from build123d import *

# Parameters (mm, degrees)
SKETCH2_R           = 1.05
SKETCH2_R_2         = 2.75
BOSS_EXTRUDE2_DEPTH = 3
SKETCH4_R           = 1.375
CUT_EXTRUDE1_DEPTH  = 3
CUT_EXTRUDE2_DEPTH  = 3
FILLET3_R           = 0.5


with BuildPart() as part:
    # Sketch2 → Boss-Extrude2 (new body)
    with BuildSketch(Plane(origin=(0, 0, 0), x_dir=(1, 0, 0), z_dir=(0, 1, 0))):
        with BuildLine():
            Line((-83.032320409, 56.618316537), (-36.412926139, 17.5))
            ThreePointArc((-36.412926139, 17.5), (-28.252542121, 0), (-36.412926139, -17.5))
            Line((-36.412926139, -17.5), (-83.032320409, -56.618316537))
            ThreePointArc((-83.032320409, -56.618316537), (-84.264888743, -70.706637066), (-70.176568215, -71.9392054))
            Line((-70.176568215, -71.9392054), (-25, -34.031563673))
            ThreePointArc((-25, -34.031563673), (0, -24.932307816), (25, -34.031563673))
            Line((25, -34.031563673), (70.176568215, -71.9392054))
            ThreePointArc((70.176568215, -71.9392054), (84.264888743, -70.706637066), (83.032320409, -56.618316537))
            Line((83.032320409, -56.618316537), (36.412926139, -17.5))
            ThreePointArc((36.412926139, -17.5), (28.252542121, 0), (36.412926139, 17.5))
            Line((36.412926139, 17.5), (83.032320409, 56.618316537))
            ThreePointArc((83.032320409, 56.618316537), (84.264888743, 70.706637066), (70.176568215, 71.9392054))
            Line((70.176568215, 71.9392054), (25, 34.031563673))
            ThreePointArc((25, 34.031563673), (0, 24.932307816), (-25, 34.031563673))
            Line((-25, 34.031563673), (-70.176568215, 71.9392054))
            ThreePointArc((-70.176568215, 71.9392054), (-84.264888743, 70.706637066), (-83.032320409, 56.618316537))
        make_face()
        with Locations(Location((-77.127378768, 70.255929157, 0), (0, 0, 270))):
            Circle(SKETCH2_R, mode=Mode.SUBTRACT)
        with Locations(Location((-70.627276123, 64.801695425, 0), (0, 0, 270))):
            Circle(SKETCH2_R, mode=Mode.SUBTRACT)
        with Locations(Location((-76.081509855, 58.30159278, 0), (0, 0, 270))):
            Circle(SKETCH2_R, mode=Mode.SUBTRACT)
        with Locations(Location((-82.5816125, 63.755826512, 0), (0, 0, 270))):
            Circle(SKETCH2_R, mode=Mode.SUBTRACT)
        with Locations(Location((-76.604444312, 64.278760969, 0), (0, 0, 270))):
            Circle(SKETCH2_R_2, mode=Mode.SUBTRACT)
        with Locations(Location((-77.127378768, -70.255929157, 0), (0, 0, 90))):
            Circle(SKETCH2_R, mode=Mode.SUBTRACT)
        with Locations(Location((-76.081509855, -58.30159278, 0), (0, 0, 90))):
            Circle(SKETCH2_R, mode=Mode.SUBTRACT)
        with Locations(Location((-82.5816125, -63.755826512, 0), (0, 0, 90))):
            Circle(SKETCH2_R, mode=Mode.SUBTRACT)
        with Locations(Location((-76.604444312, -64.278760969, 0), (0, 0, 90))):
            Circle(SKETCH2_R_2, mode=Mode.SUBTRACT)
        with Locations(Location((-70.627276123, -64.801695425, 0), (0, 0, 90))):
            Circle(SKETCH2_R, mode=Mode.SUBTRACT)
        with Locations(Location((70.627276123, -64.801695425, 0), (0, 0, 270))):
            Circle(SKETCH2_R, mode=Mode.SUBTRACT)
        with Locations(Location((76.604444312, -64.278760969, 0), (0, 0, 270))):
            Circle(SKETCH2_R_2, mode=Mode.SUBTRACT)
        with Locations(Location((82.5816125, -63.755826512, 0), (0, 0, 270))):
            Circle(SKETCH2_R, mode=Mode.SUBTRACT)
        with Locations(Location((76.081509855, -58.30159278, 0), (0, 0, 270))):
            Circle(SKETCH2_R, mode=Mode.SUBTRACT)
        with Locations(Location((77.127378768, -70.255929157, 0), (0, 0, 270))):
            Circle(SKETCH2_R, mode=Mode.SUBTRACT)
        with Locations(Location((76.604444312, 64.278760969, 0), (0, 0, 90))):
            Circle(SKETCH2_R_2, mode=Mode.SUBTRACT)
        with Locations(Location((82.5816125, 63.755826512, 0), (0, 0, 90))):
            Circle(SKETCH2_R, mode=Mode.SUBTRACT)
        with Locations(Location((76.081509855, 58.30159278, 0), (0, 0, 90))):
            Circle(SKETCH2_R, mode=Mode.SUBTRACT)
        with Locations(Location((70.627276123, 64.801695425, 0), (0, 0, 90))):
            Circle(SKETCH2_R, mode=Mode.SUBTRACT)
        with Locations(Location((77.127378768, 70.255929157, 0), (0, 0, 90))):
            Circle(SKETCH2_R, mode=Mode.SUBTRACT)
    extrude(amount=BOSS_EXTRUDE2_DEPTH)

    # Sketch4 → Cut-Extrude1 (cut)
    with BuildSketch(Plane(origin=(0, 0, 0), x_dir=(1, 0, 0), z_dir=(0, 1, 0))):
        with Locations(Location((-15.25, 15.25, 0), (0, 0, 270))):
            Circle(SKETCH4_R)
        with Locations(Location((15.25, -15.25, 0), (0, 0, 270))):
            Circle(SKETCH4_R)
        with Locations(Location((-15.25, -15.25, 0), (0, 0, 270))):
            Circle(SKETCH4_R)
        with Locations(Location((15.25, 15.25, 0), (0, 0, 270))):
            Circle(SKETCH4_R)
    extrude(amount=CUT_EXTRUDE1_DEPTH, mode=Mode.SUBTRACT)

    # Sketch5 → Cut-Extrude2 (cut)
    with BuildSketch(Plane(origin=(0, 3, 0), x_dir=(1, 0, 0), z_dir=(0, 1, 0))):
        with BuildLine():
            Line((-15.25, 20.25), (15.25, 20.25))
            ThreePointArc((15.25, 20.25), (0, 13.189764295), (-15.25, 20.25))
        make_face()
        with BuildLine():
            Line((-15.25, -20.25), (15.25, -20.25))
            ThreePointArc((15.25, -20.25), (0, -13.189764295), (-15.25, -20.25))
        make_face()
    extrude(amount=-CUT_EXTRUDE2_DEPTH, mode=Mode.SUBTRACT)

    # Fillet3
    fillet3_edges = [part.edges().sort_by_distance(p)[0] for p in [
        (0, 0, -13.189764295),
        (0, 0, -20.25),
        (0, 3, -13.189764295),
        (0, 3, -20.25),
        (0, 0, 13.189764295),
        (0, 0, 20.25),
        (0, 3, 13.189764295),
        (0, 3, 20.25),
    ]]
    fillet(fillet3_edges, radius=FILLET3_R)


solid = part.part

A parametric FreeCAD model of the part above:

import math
import FreeCAD as App
import Part
import Sketcher
Q = App.Units.Quantity


def edges_at(feature, points):
    """Names of the edges that pass closest to the given points."""
    edges = feature.Shape.Edges
    near = lambda p: min(range(len(edges)), key=lambda i: edges[i].distToShape(Part.Vertex(*p))[0])
    return sorted({f"Edge{near(p) + 1}" for p in points})

doc = App.newDocument("Part")
body = doc.addObject("PartDesign::Body", "Body")

# Sketch on XZ plane
sketch1 = body.newObject("Sketcher::SketchObject", "Sketch")
sketch1.AttachmentSupport = (doc.getObject("XZ_Plane"), [""])
sketch1.MapMode = "FlatFace"
sketch1.addGeometry(Part.LineSegment(App.Vector(-83.03232, -56.618317, 0), App.Vector(-36.412926, -17.5, 0)), False)
sketch1.addGeometry(Part.ArcOfCircle(Part.Circle(App.Vector(-51.09717, 0, 0), App.Vector(0, 0, 1), 22.844628), math.radians(-50), math.radians(50)), False)
sketch1.addGeometry(Part.LineSegment(App.Vector(-36.412926, 17.5, 0), App.Vector(-83.03232, 56.618317, 0)), False)
sketch1.addGeometry(Part.ArcOfCircle(Part.Circle(App.Vector(-76.604444, 64.278761, 0), App.Vector(0, 0, 1), 10), math.radians(50), math.radians(230)), False)
sketch1.addGeometry(Part.LineSegment(App.Vector(-70.176568, 71.939205, 0), App.Vector(-25, 34.031564, 0)), False)
sketch1.addGeometry(Part.ArcOfCircle(Part.Circle(App.Vector(0, 63.825403, 0), App.Vector(0, 0, 1), 38.893096), math.radians(-130), math.radians(-50)), False)
sketch1.addGeometry(Part.LineSegment(App.Vector(25, 34.031564, 0), App.Vector(70.176568, 71.939205, 0)), False)
sketch1.addGeometry(Part.ArcOfCircle(Part.Circle(App.Vector(76.604444, 64.278761, 0), App.Vector(0, 0, 1), 10), math.radians(-50), math.radians(130)), False)
sketch1.addGeometry(Part.LineSegment(App.Vector(83.03232, 56.618317, 0), App.Vector(36.412926, 17.5, 0)), False)
sketch1.addGeometry(Part.ArcOfCircle(Part.Circle(App.Vector(51.09717, 0, 0), App.Vector(0, 0, 1), 22.844628), math.radians(130), math.radians(230)), False)
sketch1.addGeometry(Part.LineSegment(App.Vector(36.412926, -17.5, 0), App.Vector(83.03232, -56.618317, 0)), False)
sketch1.addGeometry(Part.ArcOfCircle(Part.Circle(App.Vector(76.604444, -64.278761, 0), App.Vector(0, 0, 1), 10), math.radians(-130), math.radians(50)), False)
sketch1.addGeometry(Part.LineSegment(App.Vector(70.176568, -71.939205, 0), App.Vector(25, -34.031564, 0)), False)
sketch1.addGeometry(Part.ArcOfCircle(Part.Circle(App.Vector(0, -63.825403, 0), App.Vector(0, 0, 1), 38.893096), math.radians(50), math.radians(130)), False)
sketch1.addGeometry(Part.LineSegment(App.Vector(-25, -34.031564, 0), App.Vector(-70.176568, -71.939205, 0)), False)
sketch1.addGeometry(Part.ArcOfCircle(Part.Circle(App.Vector(-76.604444, -64.278761, 0), App.Vector(0, 0, 1), 10), math.radians(130), math.radians(310)), False)
sketch1.addGeometry(Part.Circle(App.Vector(-77.127379, 70.255929, 0), App.Vector(0, 0, 1), 1.05), False)
sketch1.addGeometry(Part.Circle(App.Vector(-82.581613, 63.755827, 0), App.Vector(0, 0, 1), 1.05), False)
sketch1.addGeometry(Part.Circle(App.Vector(-76.604444, 64.278761, 0), App.Vector(0, 0, 1), 2.75), False)
sketch1.addGeometry(Part.Circle(App.Vector(-70.627276, 64.801695, 0), App.Vector(0, 0, 1), 1.05), False)
sketch1.addGeometry(Part.Circle(App.Vector(-76.08151, 58.301593, 0), App.Vector(0, 0, 1), 1.05), False)
sketch1.addGeometry(Part.Circle(App.Vector(70.627276, 64.801695, 0), App.Vector(0, 0, 1), 1.05), False)
sketch1.addGeometry(Part.Circle(App.Vector(77.127379, 70.255929, 0), App.Vector(0, 0, 1), 1.05), False)
sketch1.addGeometry(Part.Circle(App.Vector(76.604444, 64.278761, 0), App.Vector(0, 0, 1), 2.75), False)
sketch1.addGeometry(Part.Circle(App.Vector(82.581613, 63.755827, 0), App.Vector(0, 0, 1), 1.05), False)
sketch1.addGeometry(Part.Circle(App.Vector(76.08151, 58.301593, 0), App.Vector(0, 0, 1), 1.05), False)
sketch1.addGeometry(Part.Circle(App.Vector(-76.08151, -58.301593, 0), App.Vector(0, 0, 1), 1.05), False)
sketch1.addGeometry(Part.Circle(App.Vector(-82.581613, -63.755827, 0), App.Vector(0, 0, 1), 1.05), False)
sketch1.addGeometry(Part.Circle(App.Vector(-76.604444, -64.278761, 0), App.Vector(0, 0, 1), 2.75), False)
sketch1.addGeometry(Part.Circle(App.Vector(-77.127379, -70.255929, 0), App.Vector(0, 0, 1), 1.05), False)
sketch1.addGeometry(Part.Circle(App.Vector(-70.627276, -64.801695, 0), App.Vector(0, 0, 1), 1.05), False)
sketch1.addGeometry(Part.Circle(App.Vector(76.08151, -58.301593, 0), App.Vector(0, 0, 1), 1.05), False)
sketch1.addGeometry(Part.Circle(App.Vector(70.627276, -64.801695, 0), App.Vector(0, 0, 1), 1.05), False)
sketch1.addGeometry(Part.Circle(App.Vector(76.604444, -64.278761, 0), App.Vector(0, 0, 1), 2.75), False)
sketch1.addGeometry(Part.Circle(App.Vector(82.581613, -63.755827, 0), App.Vector(0, 0, 1), 1.05), False)
sketch1.addGeometry(Part.Circle(App.Vector(77.127379, -70.255929, 0), App.Vector(0, 0, 1), 1.05), False)
sketch1.addConstraint(Sketcher.Constraint("Tangent", 0, 2, 1, 1))
sketch1.addConstraint(Sketcher.Constraint("Tangent", 1, 2, 2, 1))
sketch1.addConstraint(Sketcher.Constraint("Tangent", 2, 2, 3, 2))
sketch1.addConstraint(Sketcher.Constraint("Tangent", 3, 1, 4, 1))
sketch1.addConstraint(Sketcher.Constraint("Tangent", 4, 2, 5, 1))
sketch1.addConstraint(Sketcher.Constraint("Tangent", 5, 2, 6, 1))
sketch1.addConstraint(Sketcher.Constraint("Tangent", 6, 2, 7, 2))
sketch1.addConstraint(Sketcher.Constraint("Tangent", 7, 1, 8, 1))
sketch1.addConstraint(Sketcher.Constraint("Tangent", 8, 2, 9, 1))
sketch1.addConstraint(Sketcher.Constraint("Tangent", 9, 2, 10, 1))
sketch1.addConstraint(Sketcher.Constraint("Tangent", 10, 2, 11, 2))
sketch1.addConstraint(Sketcher.Constraint("Tangent", 11, 1, 12, 1))
sketch1.addConstraint(Sketcher.Constraint("Tangent", 12, 2, 13, 1))
sketch1.addConstraint(Sketcher.Constraint("Tangent", 13, 2, 14, 1))
sketch1.addConstraint(Sketcher.Constraint("Tangent", 14, 2, 15, 2))
sketch1.addConstraint(Sketcher.Constraint("Tangent", 15, 1, 0, 1))
sketch1.addConstraint(Sketcher.Constraint("Coincident", 18, 3, 3, 3))
sketch1.addConstraint(Sketcher.Constraint("Coincident", 23, 3, 7, 3))
sketch1.addConstraint(Sketcher.Constraint("Coincident", 28, 3, 15, 3))
sketch1.addConstraint(Sketcher.Constraint("Coincident", 33, 3, 11, 3))
sketch1.addConstraint(Sketcher.Constraint("Equal", 3, 7))
sketch1.addConstraint(Sketcher.Constraint("Equal", 1, 9))
sketch1.addConstraint(Sketcher.Constraint("Equal", 7, 11))
sketch1.addConstraint(Sketcher.Constraint("Equal", 5, 13))
sketch1.addConstraint(Sketcher.Constraint("Equal", 11, 15))
sketch1.addConstraint(Sketcher.Constraint("Equal", 16, 17))
sketch1.addConstraint(Sketcher.Constraint("Equal", 17, 19))
sketch1.addConstraint(Sketcher.Constraint("Equal", 19, 20))
sketch1.addConstraint(Sketcher.Constraint("Equal", 20, 21))
sketch1.addConstraint(Sketcher.Constraint("Equal", 21, 22))
sketch1.addConstraint(Sketcher.Constraint("Equal", 18, 23))
sketch1.addConstraint(Sketcher.Constraint("Equal", 22, 24))
sketch1.addConstraint(Sketcher.Constraint("Equal", 24, 25))
sketch1.addConstraint(Sketcher.Constraint("Equal", 25, 26))
sketch1.addConstraint(Sketcher.Constraint("Equal", 26, 27))
sketch1.addConstraint(Sketcher.Constraint("Equal", 23, 28))
sketch1.addConstraint(Sketcher.Constraint("Equal", 27, 29))
sketch1.addConstraint(Sketcher.Constraint("Equal", 29, 30))
sketch1.addConstraint(Sketcher.Constraint("Equal", 30, 31))
sketch1.addConstraint(Sketcher.Constraint("Equal", 31, 32))
sketch1.addConstraint(Sketcher.Constraint("Equal", 28, 33))
sketch1.addConstraint(Sketcher.Constraint("Equal", 32, 34))
sketch1.addConstraint(Sketcher.Constraint("Equal", 34, 35))
sketch1.addConstraint(Sketcher.Constraint("Symmetric", 1, 3, 9, 3, -1, 1))
sketch1.addConstraint(Sketcher.Constraint("Symmetric", 3, 3, 11, 3, -1, 1))
sketch1.addConstraint(Sketcher.Constraint("Symmetric", 5, 3, 13, 3, -1, 1))
sketch1.addConstraint(Sketcher.Constraint("Symmetric", 7, 3, 15, 3, -1, 1))
sketch1.addConstraint(Sketcher.Constraint("Symmetric", 25, 3, 26, 3, -1, 1))
sketch1.addConstraint(Sketcher.Constraint("Symmetric", 24, 3, 27, 3, -1, 1))
sketch1.addConstraint(Sketcher.Constraint("Symmetric", 22, 3, 29, 3, -1, 1))
sketch1.addConstraint(Sketcher.Constraint("Symmetric", 21, 3, 30, 3, -1, 1))
sketch1.addConstraint(Sketcher.Constraint("Symmetric", 20, 3, 31, 3, -1, 1))
sketch1.addConstraint(Sketcher.Constraint("Symmetric", 19, 3, 32, 3, -1, 1))
sketch1.addConstraint(Sketcher.Constraint("Symmetric", 17, 3, 34, 3, -1, 1))
sketch1.addConstraint(Sketcher.Constraint("Symmetric", 16, 3, 35, 3, -1, 1))
sketch1.addConstraint(Sketcher.Constraint("Symmetric", 3, 3, 7, 3, -2))
sketch1.addConstraint(Sketcher.Constraint("Symmetric", 19, 3, 21, 3, -2))
sketch1.addConstraint(Sketcher.Constraint("Symmetric", 16, 3, 22, 3, -2))
sketch1.addConstraint(Sketcher.Constraint("Symmetric", 17, 3, 24, 3, -2))
sketch1.addConstraint(Sketcher.Constraint("Symmetric", 20, 3, 25, 3, -2))
sketch1.addConstraint(Sketcher.Constraint("PointOnObject", 1, 3, -1))
sketch1.addConstraint(Sketcher.Constraint("PointOnObject", 5, 3, -2))
sketch1.addConstraint(Sketcher.Constraint("Parallel", 2, 4))
sketch1.addConstraint(Sketcher.Constraint("Radius", 3, 10.0))
sketch1.addConstraint(Sketcher.Constraint("Diameter", 16, 2.1))
sketch1.addConstraint(Sketcher.Constraint("Diameter", 18, 5.5))
sketch1.addConstraint(Sketcher.Constraint("Angle", 0, Q("40 deg")))
sketch1.addConstraint(Sketcher.Constraint("DistanceX", 4, 2, -1, 1, 25.0))
sketch1.addConstraint(Sketcher.Constraint("DistanceY", 0, 2, 1, 2, 35.0))
sketch1.addConstraint(Sketcher.Constraint("Distance", 4, 58.973821))
sketch1.addConstraint(Sketcher.Constraint("DistanceX", 1, 3, -1, 1, 51.09717))
sketch1.addConstraint(Sketcher.Constraint("DistanceX", 16, 3, -1, 1, 77.127379))
sketch1.addConstraint(Sketcher.Constraint("DistanceY", -1, 1, 16, 3, 70.255929))
sketch1.addConstraint(Sketcher.Constraint("DistanceX", 20, 3, -1, 1, 76.08151))
sketch1.addConstraint(Sketcher.Constraint("DistanceX", 17, 3, 3, 3, 5.977168))
sketch1.addConstraint(Sketcher.Constraint("DistanceX", 18, 3, 19, 3, 5.977168))
sketch1.addConstraint(Sketcher.Constraint("DistanceY", 17, 3, 19, 3, 1.045869))
sketch1.addConstraint(Sketcher.Constraint("DistanceY", 20, 3, 3, 3, 5.977168))
sketch1.addConstraint(Sketcher.Constraint("DistanceY", 5, 3, 21, 3, 0.976292))
pad1 = body.newObject("PartDesign::Pad", "Pad")
pad1.Profile = sketch1
pad1.Length = 3
pad1.Reversed = True

# Sketch on XZ plane
sketch2 = body.newObject("Sketcher::SketchObject", "Sketch001")
sketch2.AttachmentSupport = (doc.getObject("XZ_Plane"), [""])
sketch2.MapMode = "FlatFace"
sketch2.addGeometry(Part.Circle(App.Vector(-15.25, -15.25, 0), App.Vector(0, 0, 1), 1.375), False)
sketch2.addGeometry(Part.Circle(App.Vector(15.25, 15.25, 0), App.Vector(0, 0, 1), 1.375), False)
sketch2.addGeometry(Part.Circle(App.Vector(-15.25, 15.25, 0), App.Vector(0, 0, 1), 1.375), False)
sketch2.addGeometry(Part.Circle(App.Vector(15.25, -15.25, 0), App.Vector(0, 0, 1), 1.375), False)
sketch2.addConstraint(Sketcher.Constraint("Equal", 0, 1))
sketch2.addConstraint(Sketcher.Constraint("Equal", 1, 2))
sketch2.addConstraint(Sketcher.Constraint("Equal", 2, 3))
sketch2.addConstraint(Sketcher.Constraint("Symmetric", 0, 3, 1, 3, -1, 1))
sketch2.addConstraint(Sketcher.Constraint("Symmetric", 2, 3, 3, 3, -1, 1))
sketch2.addConstraint(Sketcher.Constraint("Symmetric", 1, 3, 2, 3, -2))
sketch2.addConstraint(Sketcher.Constraint("Diameter", 0, 2.75))
sketch2.addConstraint(Sketcher.Constraint("DistanceX", 0, 3, 1, 3, 30.5))
sketch2.addConstraint(Sketcher.Constraint("DistanceY", 0, 3, 1, 3, 30.5))
pocket1 = body.newObject("PartDesign::Pocket", "Pocket")
pocket1.Profile = sketch2
pocket1.Length = 3

# Sketch on XZ plane
sketch3 = body.newObject("Sketcher::SketchObject", "Sketch002")
sketch3.AttachmentSupport = (doc.getObject("XZ_Plane"), [""])
sketch3.MapMode = "FlatFace"
sketch3.AttachmentOffset = App.Placement(App.Vector(0, 0, -3), App.Rotation())
sketch3.addGeometry(Part.LineSegment(App.Vector(15.25, -20.25, 0), App.Vector(-15.25, -20.25, 0)), False)
sketch3.addGeometry(Part.ArcOfCircle(Part.Circle(App.Vector(0, -33.189764, 0), App.Vector(0, 0, 1), 20), math.radians(40.314909), math.radians(139.685091)), False)
sketch3.addGeometry(Part.LineSegment(App.Vector(-15.25, 20.25, 0), App.Vector(15.25, 20.25, 0)), False)
sketch3.addGeometry(Part.ArcOfCircle(Part.Circle(App.Vector(0, 33.189764, 0), App.Vector(0, 0, 1), 20), math.radians(-139.685091), math.radians(-40.314909)), False)
sketch3.addConstraint(Sketcher.Constraint("Coincident", 0, 1, 1, 1))
sketch3.addConstraint(Sketcher.Constraint("Coincident", 1, 2, 0, 2))
sketch3.addConstraint(Sketcher.Constraint("Coincident", 2, 1, 3, 1))
sketch3.addConstraint(Sketcher.Constraint("Coincident", 3, 2, 2, 2))
sketch3.addConstraint(Sketcher.Constraint("Horizontal", 0))
sketch3.addConstraint(Sketcher.Constraint("Horizontal", 2))
sketch3.addConstraint(Sketcher.Constraint("Equal", 1, 3))
sketch3.addConstraint(Sketcher.Constraint("Symmetric", 1, 3, 3, 3, -1, 1))
sketch3.addConstraint(Sketcher.Constraint("Symmetric", 1, 2, 2, 1, -1))
sketch3.addConstraint(Sketcher.Constraint("Radius", 1, 20.0))
sketch3.addConstraint(Sketcher.Constraint("DistanceX", 0, 2, 0, 1, 30.5))
sketch3.addConstraint(Sketcher.Constraint("DistanceY", 1, 2, 2, 1, 40.5))
pocket2 = body.newObject("PartDesign::Pocket", "Pocket001")
pocket2.Profile = sketch3
pocket2.Length = 3
pocket2.Reversed = True
doc.recompute()

fillet = body.newObject("PartDesign::Fillet", "Fillet")
fillet.Base = (pocket2, edges_at(pocket2, [
    (0, 0, -13.19),
    (0, 0, -20.25),
    (0, 3, -13.19),
    (0, 3, -20.25),
    (0, 0, 13.19),
    (0, 0, 20.25),
    (0, 3, 13.19),
    (0, 3, 20.25),
]))
fillet.Radius = 0.5

doc.recompute()
